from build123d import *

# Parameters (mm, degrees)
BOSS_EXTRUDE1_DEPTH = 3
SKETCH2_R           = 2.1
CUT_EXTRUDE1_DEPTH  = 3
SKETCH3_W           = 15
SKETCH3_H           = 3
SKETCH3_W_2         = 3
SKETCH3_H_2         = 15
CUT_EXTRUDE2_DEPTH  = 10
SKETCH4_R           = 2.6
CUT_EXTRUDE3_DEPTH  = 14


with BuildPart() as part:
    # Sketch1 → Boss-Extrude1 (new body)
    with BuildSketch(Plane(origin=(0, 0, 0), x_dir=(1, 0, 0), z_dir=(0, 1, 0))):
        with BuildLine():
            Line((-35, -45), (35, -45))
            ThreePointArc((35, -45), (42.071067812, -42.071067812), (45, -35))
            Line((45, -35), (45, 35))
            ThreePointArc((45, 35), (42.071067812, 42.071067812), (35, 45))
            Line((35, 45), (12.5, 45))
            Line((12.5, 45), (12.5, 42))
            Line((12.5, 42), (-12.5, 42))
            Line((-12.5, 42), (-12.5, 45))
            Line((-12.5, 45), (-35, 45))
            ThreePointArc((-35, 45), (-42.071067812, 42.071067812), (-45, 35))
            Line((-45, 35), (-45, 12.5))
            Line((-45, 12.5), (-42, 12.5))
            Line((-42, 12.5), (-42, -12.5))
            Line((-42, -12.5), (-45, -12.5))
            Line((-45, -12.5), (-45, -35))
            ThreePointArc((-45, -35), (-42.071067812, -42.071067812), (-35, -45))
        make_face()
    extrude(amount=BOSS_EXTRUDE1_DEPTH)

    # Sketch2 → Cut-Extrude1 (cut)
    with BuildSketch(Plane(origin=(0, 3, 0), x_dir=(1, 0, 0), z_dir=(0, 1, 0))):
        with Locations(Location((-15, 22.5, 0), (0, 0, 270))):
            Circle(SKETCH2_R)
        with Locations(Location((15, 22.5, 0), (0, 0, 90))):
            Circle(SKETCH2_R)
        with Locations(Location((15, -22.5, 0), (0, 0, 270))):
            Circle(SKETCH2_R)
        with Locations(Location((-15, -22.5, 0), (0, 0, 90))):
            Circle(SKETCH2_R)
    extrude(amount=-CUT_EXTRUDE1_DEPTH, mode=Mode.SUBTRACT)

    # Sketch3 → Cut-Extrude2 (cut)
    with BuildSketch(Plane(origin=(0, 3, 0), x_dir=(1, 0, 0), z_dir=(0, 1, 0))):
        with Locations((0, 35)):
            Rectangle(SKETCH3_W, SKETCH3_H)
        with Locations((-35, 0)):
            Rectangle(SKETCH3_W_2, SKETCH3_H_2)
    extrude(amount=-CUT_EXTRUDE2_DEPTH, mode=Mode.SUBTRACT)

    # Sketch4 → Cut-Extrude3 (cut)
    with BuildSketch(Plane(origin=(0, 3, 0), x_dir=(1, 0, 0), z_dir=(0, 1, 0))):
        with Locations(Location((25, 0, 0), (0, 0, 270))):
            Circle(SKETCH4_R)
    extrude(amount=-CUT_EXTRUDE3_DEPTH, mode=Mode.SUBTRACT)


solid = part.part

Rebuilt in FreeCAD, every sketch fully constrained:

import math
import FreeCAD as App
import Part
import Sketcher
from FreeCAD import Vector


def add_polygon(sketch, points):
    """Adds a closed chain of lines whose ends are joined by coincident constraints."""
    first, n = sketch.GeometryCount, len(points)
    for a, b in zip(points, points[1:] + points[:1]):
        sketch.addGeometry(Part.LineSegment(App.Vector(*a, 0), App.Vector(*b, 0)), False)
    for i in range(n):
        sketch.addConstraint(Sketcher.Constraint("Coincident", first + i, 2, first + (i + 1) % n, 1))

doc = App.newDocument("Part")
body = doc.addObject("PartDesign::Body", "Body")

# Sketch on XZ plane
sketch1 = body.newObject("Sketcher::SketchObject", "Sketch")
sketch1.AttachmentSupport = (doc.getObject("XZ_Plane"), [""])
sketch1.MapMode = "FlatFace"
sketch1.addGeometry([
    Part.LineSegment(Vector(-35, 45, 0), Vector(35, 45, 0)),  # 0
    Part.ArcOfCircle(Part.Circle(Vector(35, 35, 0), Vector(0, 0, 1), 10), math.radians(0), math.radians(90)),  # 1
    Part.LineSegment(Vector(45, 35, 0), Vector(45, -35, 0)),  # 2
    Part.ArcOfCircle(Part.Circle(Vector(35, -35, 0), Vector(0, 0, 1), 10), math.radians(-90), math.radians(0)),  # 3
    Part.LineSegment(Vector(35, -45, 0), Vector(12.5, -45, 0)),  # 4
    Part.LineSegment(Vector(12.5, -45, 0), Vector(12.5, -42, 0)),  # 5
    Part.LineSegment(Vector(12.5, -42, 0), Vector(-12.5, -42, 0)),  # 6
    Part.LineSegment(Vector(-12.5, -42, 0), Vector(-12.5, -45, 0)),  # 7
    Part.LineSegment(Vector(-12.5, -45, 0), Vector(-35, -45, 0)),  # 8
    Part.ArcOfCircle(Part.Circle(Vector(-35, -35, 0), Vector(0, 0, 1), 10), math.radians(180), math.radians(270)),  # 9
    Part.LineSegment(Vector(-45, -35, 0), Vector(-45, -12.5, 0)),  # 10
    Part.LineSegment(Vector(-45, -12.5, 0), Vector(-42, -12.5, 0)),  # 11
    Part.LineSegment(Vector(-42, -12.5, 0), Vector(-42, 12.5, 0)),  # 12
    Part.LineSegment(Vector(-42, 12.5, 0), Vector(-45, 12.5, 0)),  # 13
    Part.LineSegment(Vector(-45, 12.5, 0), Vector(-45, 35, 0)),  # 14
    Part.ArcOfCircle(Part.Circle(Vector(-35, 35, 0), Vector(0, 0, 1), 10), math.radians(90), math.radians(180)),  # 15
], False)
sketch1.addConstraint([
    Sketcher.Constraint("Tangent", 0, 2, 1, 2),
    Sketcher.Constraint("Tangent", 1, 1, 2, 1),
    Sketcher.Constraint("Tangent", 2, 2, 3, 2),
    Sketcher.Constraint("Tangent", 3, 1, 4, 1),
    Sketcher.Constraint("Coincident", 4, 2, 5, 1),
    Sketcher.Constraint("Coincident", 5, 2, 6, 1),
    Sketcher.Constraint("Coincident", 6, 2, 7, 1),
    Sketcher.Constraint("Coincident", 7, 2, 8, 1),
    Sketcher.Constraint("Tangent", 8, 2, 9, 2),
    Sketcher.Constraint("Tangent", 9, 1, 10, 1),
    Sketcher.Constraint("Coincident", 10, 2, 11, 1),
    Sketcher.Constraint("Coincident", 11, 2, 12, 1),
    Sketcher.Constraint("Coincident", 12, 2, 13, 1),
    Sketcher.Constraint("Coincident", 13, 2, 14, 1),
    Sketcher.Constraint("Tangent", 14, 2, 15, 2),
    Sketcher.Constraint("Tangent", 15, 1, 0, 1),
    Sketcher.Constraint("Horizontal", 0),
    Sketcher.Constraint("Vertical", 2),
    Sketcher.Constraint("Horizontal", 4),
    Sketcher.Constraint("Vertical", 5),
    Sketcher.Constraint("Horizontal", 6),
    Sketcher.Constraint("Vertical", 7),
    Sketcher.Constraint("Horizontal", 8),
    Sketcher.Constraint("Vertical", 10),
    Sketcher.Constraint("Horizontal", 11),
    Sketcher.Constraint("Vertical", 12),
    Sketcher.Constraint("Horizontal", 13),
    Sketcher.Constraint("Vertical", 14),
    Sketcher.Constraint("Equal", 1, 3),
    Sketcher.Constraint("Equal", 3, 9),
    Sketcher.Constraint("Equal", 9, 15),
    Sketcher.Constraint("Symmetric", 1, 3, 9, 3, -1, 1),
    Sketcher.Constraint("Symmetric", 3, 3, 15, 3, -1, 1),
    Sketcher.Constraint("Equal", 4, 8),
    Sketcher.Constraint("Equal", 0, 2),
    Sketcher.Constraint("Equal", 13, 5),
    Sketcher.Constraint("Equal", 8, 10),
    Sketcher.Constraint("Equal", 6, 12),
    Sketcher.Constraint("Radius", 1, 10.0),
    Sketcher.Constraint("DistanceX", 0, 1, 0, 2, 70.0),
    Sketcher.Constraint("DistanceX", 6, 2, 6, 1, 25.0),
    Sketcher.Constraint("DistanceX", 11, 1, 11, 2, 3.0),
])
pad1 = body.newObject("PartDesign::Pad", "Pad")
pad1.Profile = sketch1
pad1.Length = 3
pad1.Reversed = True

# Sketch on XZ plane
sketch2 = body.newObject("Sketcher::SketchObject", "Sketch001")
sketch2.AttachmentSupport = (doc.getObject("XZ_Plane"), [""])
sketch2.MapMode = "FlatFace"
sketch2.AttachmentOffset = App.Placement(Vector(0, 0, -3), App.Rotation())
sketch2.addGeometry([
    Part.Circle(Vector(-15, -22.5, 0), Vector(0, 0, 1), 2.1),
    Part.Circle(Vector(15, -22.5, 0), Vector(0, 0, 1), 2.1),
    Part.Circle(Vector(15, 22.5, 0), Vector(0, 0, 1), 2.1),
    Part.Circle(Vector(-15, 22.5, 0), Vector(0, 0, 1), 2.1),
], False)
sketch2.addConstraint([
    Sketcher.Constraint("Equal", 0, 1),
    Sketcher.Constraint("Equal", 1, 2),
    Sketcher.Constraint("Equal", 2, 3),
    Sketcher.Constraint("Symmetric", 0, 3, 2, 3, -1, 1),
    Sketcher.Constraint("Symmetric", 1, 3, 3, 3, -1, 1),
    Sketcher.Constraint("Symmetric", 0, 3, 1, 3, -2),
    Sketcher.Constraint("Diameter", 0, 4.2),
    Sketcher.Constraint("DistanceX", 0, 3, -1, 1, 15.0),
    Sketcher.Constraint("DistanceY", 1, 3, 2, 3, 45.0),
])
pocket1 = body.newObject("PartDesign::Pocket", "Pocket")
pocket1.Profile = sketch2
pocket1.Length = 3
pocket1.Reversed = True

# Sketch on XZ plane
sketch3 = body.newObject("Sketcher::SketchObject", "Sketch002")
sketch3.AttachmentSupport = (doc.getObject("XZ_Plane"), [""])
sketch3.MapMode = "FlatFace"
sketch3.AttachmentOffset = App.Placement(Vector(0, 0, -3), App.Rotation())
add_polygon(sketch3, [(-7.5, -36.5), (-7.5, -33.5), (7.5, -33.5), (7.5, -36.5)])  # lines 0-3
add_polygon(sketch3, [(-36.5, -7.5), (-36.5, 7.5), (-33.5, 7.5), (-33.5, -7.5)])  # lines 4-7
sketch3.addConstraint([
    Sketcher.Constraint("Vertical", 0),
    Sketcher.Constraint("Horizontal", 1),
    Sketcher.Constraint("Vertical", 2),
    Sketcher.Constraint("Horizontal", 3),
    Sketcher.Constraint("Vertical", 4),
    Sketcher.Constraint("Horizontal", 5),
    Sketcher.Constraint("Vertical", 6),
    Sketcher.Constraint("Horizontal", 7),
    Sketcher.Constraint("Equal", 7, 0),
    Sketcher.Constraint("Equal", 3, 4),
    Sketcher.Constraint("DistanceX", 1, 1, 1, 2, 15.0),
    Sketcher.Constraint("DistanceX", 5, 1, 5, 2, 3.0),
    Sketcher.Constraint("DistanceX", 4, 2, 0, 2, 29.0),
    Sketcher.Constraint("DistanceY", 0, 2, 4, 2, 41.0),
    Sketcher.Constraint("DistanceX", 0, 2, -1, 1, 7.5),
    Sketcher.Constraint("DistanceY", 0, 2, -1, 1, 33.5),
])
pocket2 = body.newObject("PartDesign::Pocket", "Pocket001")
pocket2.Profile = sketch3
pocket2.Length = 10
pocket2.Reversed = True

# Sketch on XZ plane
sketch4 = body.newObject("Sketcher::SketchObject", "Sketch003")
sketch4.AttachmentSupport = (doc.getObject("XZ_Plane"), [""])
sketch4.MapMode = "FlatFace"
sketch4.AttachmentOffset = App.Placement(Vector(0, 0, -3), App.Rotation())
sketch4.addGeometry(Part.Circle(Vector(25, 0, 0), Vector(0, 0, 1), 2.6), False)
sketch4.addConstraint([
    Sketcher.Constraint("PointOnObject", 0, 3, -1),
    Sketcher.Constraint("Diameter", 0, 5.2),
    Sketcher.Constraint("DistanceX", -1, 1, 0, 3, 25.0),
])
pocket3 = body.newObject("PartDesign::Pocket", "Pocket002")
pocket3.Profile = sketch4
pocket3.Length = 14
pocket3.Reversed = True

doc.recompute()
